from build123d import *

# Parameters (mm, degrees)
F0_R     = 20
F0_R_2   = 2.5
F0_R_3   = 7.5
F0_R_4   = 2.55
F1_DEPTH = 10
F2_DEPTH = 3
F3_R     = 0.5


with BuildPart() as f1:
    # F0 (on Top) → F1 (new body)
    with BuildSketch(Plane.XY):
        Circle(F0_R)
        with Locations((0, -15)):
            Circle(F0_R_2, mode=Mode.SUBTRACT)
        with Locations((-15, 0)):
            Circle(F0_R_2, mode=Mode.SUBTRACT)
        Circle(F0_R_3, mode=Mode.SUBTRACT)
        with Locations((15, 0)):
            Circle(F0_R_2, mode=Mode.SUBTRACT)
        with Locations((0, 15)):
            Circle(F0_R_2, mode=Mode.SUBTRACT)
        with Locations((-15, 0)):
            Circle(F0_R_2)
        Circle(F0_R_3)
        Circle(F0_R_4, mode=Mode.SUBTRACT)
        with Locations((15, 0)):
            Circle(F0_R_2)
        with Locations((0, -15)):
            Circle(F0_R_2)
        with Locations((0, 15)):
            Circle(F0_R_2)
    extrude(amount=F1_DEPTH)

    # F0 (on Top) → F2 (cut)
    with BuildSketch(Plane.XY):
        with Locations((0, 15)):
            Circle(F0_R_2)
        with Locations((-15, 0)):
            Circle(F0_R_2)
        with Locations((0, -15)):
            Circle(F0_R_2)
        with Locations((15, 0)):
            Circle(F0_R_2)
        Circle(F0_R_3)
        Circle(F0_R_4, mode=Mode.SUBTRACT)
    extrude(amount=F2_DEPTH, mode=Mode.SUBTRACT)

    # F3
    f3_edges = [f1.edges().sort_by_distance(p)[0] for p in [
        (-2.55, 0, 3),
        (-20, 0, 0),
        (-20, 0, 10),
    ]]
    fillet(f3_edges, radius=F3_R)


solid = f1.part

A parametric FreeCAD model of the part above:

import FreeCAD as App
import Part
import Sketcher


def edges_at(feature, points):
    """Names of the edges that pass closest to the given points."""
    edges = feature.Shape.Edges
    near = lambda p: min(range(len(edges)), key=lambda i: edges[i].distToShape(Part.Vertex(*p))[0])
    return sorted({f"Edge{near(p) + 1}" for p in points})

doc = App.newDocument("Part")
body = doc.addObject("PartDesign::Body", "Body")

# Sketch on XY plane
sketch1 = body.newObject("Sketcher::SketchObject", "Sketch")
sketch1.AttachmentSupport = (doc.getObject("XY_Plane"), [""])
sketch1.MapMode = "FlatFace"
sketch1.addGeometry([
    Part.Circle(App.Vector(0, 0, 0), App.Vector(0, 0, 1), 20),
    Part.Circle(App.Vector(0, 0, 0), App.Vector(0, 0, 1), 2.5),
], False)
sketch1.addConstraint([
    Sketcher.Constraint("Coincident", 0, 3, -1, 1),
    Sketcher.Constraint("Coincident", 1, 3, -1, 1),
    Sketcher.Constraint("Diameter", 0, 40.0),
    Sketcher.Constraint("Diameter", 1, 5.1),
])
pad1 = body.newObject("PartDesign::Pad", "Pad")
pad1.Profile = sketch1
pad1.Length = 10

# Sketch on XY plane
sketch2 = body.newObject("Sketcher::SketchObject", "Sketch001")
sketch2.AttachmentSupport = (doc.getObject("XY_Plane"), [""])
sketch2.MapMode = "FlatFace"
sketch2.addGeometry([
    Part.Circle(App.Vector(0, 15, 0), App.Vector(0, 0, 1), 2.5),  # 0
    Part.Circle(App.Vector(-15, 0, 0), App.Vector(0, 0, 1), 2.5),  # 1
    Part.Circle(App.Vector(0, -15, 0), App.Vector(0, 0, 1), 2.5),  # 2
    Part.Circle(App.Vector(15, 0, 0), App.Vector(0, 0, 1), 2.5),  # 3
    Part.Circle(App.Vector(0, 0, 0), App.Vector(0, 0, 1), 7.5),  # 4
    Part.Circle(App.Vector(0, 0, 0), App.Vector(0, 0, 1), 2.5),  # 5
], False)
sketch2.addConstraint([
    Sketcher.Constraint("Coincident", 4, 3, -1, 1),
    Sketcher.Constraint("Coincident", 5, 3, -1, 1),
    Sketcher.Constraint("Equal", 0, 1),
    Sketcher.Constraint("Equal", 1, 2),
    Sketcher.Constraint("Equal", 2, 3),
    Sketcher.Constraint("Symmetric", 0, 3, 2, 3, -1, 1),
    Sketcher.Constraint("Symmetric", 1, 3, 3, 3, -1, 1),
    Sketcher.Constraint("PointOnObject", 0, 3, -2),
    Sketcher.Constraint("PointOnObject", 1, 3, -1),
    Sketcher.Constraint("Diameter", 0, 5.0),
    Sketcher.Constraint("Diameter", 4, 15.0),
    Sketcher.Constraint("Diameter", 5, 5.1),
    Sketcher.Constraint("DistanceY", -1, 1, 0, 3, 15.0),
    Sketcher.Constraint("DistanceX", 1, 3, -1, 1, 15.0),
])
pocket1 = body.newObject("PartDesign::Pocket", "Pocket")
pocket1.Profile = sketch2
pocket1.Length = 3
pocket1.Reversed = True
doc.recompute()

fillet = body.newObject("PartDesign::Fillet", "Fillet")
fillet.Base = (pocket1, edges_at(pocket1, [(-2.55, 0, 3), (-20, 0, 0), (-20, 0, 10)]))
fillet.Radius = 0.5

doc.recompute()
